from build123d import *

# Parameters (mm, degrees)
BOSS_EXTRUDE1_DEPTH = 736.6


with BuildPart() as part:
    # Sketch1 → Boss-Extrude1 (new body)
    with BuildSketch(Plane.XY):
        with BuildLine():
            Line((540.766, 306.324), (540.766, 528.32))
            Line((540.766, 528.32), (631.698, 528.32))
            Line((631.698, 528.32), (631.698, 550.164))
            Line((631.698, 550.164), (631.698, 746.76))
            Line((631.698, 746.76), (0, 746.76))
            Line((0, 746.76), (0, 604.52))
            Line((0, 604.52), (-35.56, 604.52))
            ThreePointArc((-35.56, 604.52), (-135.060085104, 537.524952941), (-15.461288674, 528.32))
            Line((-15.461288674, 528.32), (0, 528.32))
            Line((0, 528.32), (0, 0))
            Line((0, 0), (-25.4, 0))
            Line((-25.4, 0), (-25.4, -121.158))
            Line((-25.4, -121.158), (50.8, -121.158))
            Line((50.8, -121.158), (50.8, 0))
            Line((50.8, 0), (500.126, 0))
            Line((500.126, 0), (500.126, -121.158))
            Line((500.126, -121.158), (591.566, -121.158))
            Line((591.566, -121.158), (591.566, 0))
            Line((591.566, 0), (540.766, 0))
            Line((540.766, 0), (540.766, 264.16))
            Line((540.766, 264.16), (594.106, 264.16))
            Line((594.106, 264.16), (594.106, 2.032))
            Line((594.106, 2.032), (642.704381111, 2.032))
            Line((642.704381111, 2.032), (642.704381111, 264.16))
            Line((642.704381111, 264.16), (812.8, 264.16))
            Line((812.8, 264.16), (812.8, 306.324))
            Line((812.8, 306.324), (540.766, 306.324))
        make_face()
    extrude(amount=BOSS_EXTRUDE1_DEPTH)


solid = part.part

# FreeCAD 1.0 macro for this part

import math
import FreeCAD as App
import Part
import Sketcher
Q = App.Units.Quantity

doc = App.newDocument("Part")
body = doc.addObject("PartDesign::Body", "Body")

# Sketch on XY plane
sketch1 = body.newObject("Sketcher::SketchObject", "Sketch")
sketch1.AttachmentSupport = (doc.getObject("XY_Plane"), [""])
sketch1.MapMode = "FlatFace"
sketch1.addGeometry(Part.LineSegment(App.Vector(540.766, 306.324, 0), App.Vector(540.766, 528.32, 0)), False)
sketch1.addGeometry(Part.LineSegment(App.Vector(540.766, 528.32, 0), App.Vector(631.698, 528.32, 0)), False)
sketch1.addGeometry(Part.LineSegment(App.Vector(631.698, 528.32, 0), App.Vector(631.698, 746.76, 0)), False)
sketch1.addGeometry(Part.LineSegment(App.Vector(631.698, 746.76, 0), App.Vector(0, 746.76, 0)), False)
sketch1.addGeometry(Part.LineSegment(App.Vector(0, 746.76, 0), App.Vector(0, 604.52, 0)), False)
sketch1.addGeometry(Part.LineSegment(App.Vector(0, 604.52, 0), App.Vector(-35.56, 604.52, 0)), False)
sketch1.addGeometry(Part.ArcOfCircle(Part.Circle(App.Vector(-73.66, 553.72, 0), App.Vector(0, 0, 1), 63.5), math.radians(53.130102), math.radians(336.421822)), False)
sketch1.addGeometry(Part.LineSegment(App.Vector(-15.461289, 528.32, 0), App.Vector(0, 528.32, 0)), False)
sketch1.addGeometry(Part.LineSegment(App.Vector(0, 528.32, 0), App.Vector(0, 0, 0)), False)
sketch1.addGeometry(Part.LineSegment(App.Vector(0, 0, 0), App.Vector(-25.4, 0, 0)), False)
sketch1.addGeometry(Part.LineSegment(App.Vector(-25.4, 0, 0), App.Vector(-25.4, -121.158, 0)), False)
sketch1.addGeometry(Part.LineSegment(App.Vector(-25.4, -121.158, 0), App.Vector(50.8, -121.158, 0)), False)
sketch1.addGeometry(Part.LineSegment(App.Vector(50.8, -121.158, 0), App.Vector(50.8, 0, 0)), False)
sketch1.addGeometry(Part.LineSegment(App.Vector(50.8, 0, 0), App.Vector(500.126, 0, 0)), False)
sketch1.addGeometry(Part.LineSegment(App.Vector(500.126, 0, 0), App.Vector(500.126, -121.158, 0)), False)
sketch1.addGeometry(Part.LineSegment(App.Vector(500.126, -121.158, 0), App.Vector(591.566, -121.158, 0)), False)
sketch1.addGeometry(Part.LineSegment(App.Vector(591.566, -121.158, 0), App.Vector(591.566, 0, 0)), False)
sketch1.addGeometry(Part.LineSegment(App.Vector(591.566, 0, 0), App.Vector(540.766, 0, 0)), False)
sketch1.addGeometry(Part.LineSegment(App.Vector(540.766, 0, 0), App.Vector(540.766, 264.16, 0)), False)
sketch1.addGeometry(Part.LineSegment(App.Vector(540.766, 264.16, 0), App.Vector(594.106, 264.16, 0)), False)
sketch1.addGeometry(Part.LineSegment(App.Vector(594.106, 264.16, 0), App.Vector(594.106, 2.032, 0)), False)
sketch1.addGeometry(Part.LineSegment(App.Vector(594.106, 2.032, 0), App.Vector(642.704381, 2.032, 0)), False)
sketch1.addGeometry(Part.LineSegment(App.Vector(642.704381, 2.032, 0), App.Vector(642.704381, 264.16, 0)), False)
sketch1.addGeometry(Part.LineSegment(App.Vector(642.704381, 264.16, 0), App.Vector(812.8, 264.16, 0)), False)
sketch1.addGeometry(Part.LineSegment(App.Vector(812.8, 264.16, 0), App.Vector(812.8, 306.324, 0)), False)
sketch1.addGeometry(Part.LineSegment(App.Vector(812.8, 306.324, 0), App.Vector(540.766, 306.324, 0)), False)
sketch1.addConstraint(Sketcher.Constraint("Coincident", 0, 2, 1, 1))
sketch1.addConstraint(Sketcher.Constraint("Coincident", 1, 2, 2, 1))
sketch1.addConstraint(Sketcher.Constraint("Coincident", 2, 2, 3, 1))
sketch1.addConstraint(Sketcher.Constraint("Coincident", 3, 2, 4, 1))
sketch1.addConstraint(Sketcher.Constraint("Coincident", 4, 2, 5, 1))
sketch1.addConstraint(Sketcher.Constraint("Coincident", 5, 2, 6, 1))
sketch1.addConstraint(Sketcher.Constraint("Coincident", 6, 2, 7, 1))
sketch1.addConstraint(Sketcher.Constraint("Coincident", 7, 2, 8, 1))
sketch1.addConstraint(Sketcher.Constraint("Coincident", 8, 2, 9, 1))
sketch1.addConstraint(Sketcher.Constraint("Coincident", 9, 2, 10, 1))
sketch1.addConstraint(Sketcher.Constraint("Coincident", 10, 2, 11, 1))
sketch1.addConstraint(Sketcher.Constraint("Coincident", 11, 2, 12, 1))
sketch1.addConstraint(Sketcher.Constraint("Coincident", 12, 2, 13, 1))
sketch1.addConstraint(Sketcher.Constraint("Coincident", 13, 2, 14, 1))
sketch1.addConstraint(Sketcher.Constraint("Coincident", 14, 2, 15, 1))
sketch1.addConstraint(Sketcher.Constraint("Coincident", 15, 2, 16, 1))
sketch1.addConstraint(Sketcher.Constraint("Coincident", 16, 2, 17, 1))
sketch1.addConstraint(Sketcher.Constraint("Coincident", 17, 2, 18, 1))
sketch1.addConstraint(Sketcher.Constraint("Coincident", 18, 2, 19, 1))
sketch1.addConstraint(Sketcher.Constraint("Coincident", 19, 2, 20, 1))
sketch1.addConstraint(Sketcher.Constraint("Coincident", 20, 2, 21, 1))
sketch1.addConstraint(Sketcher.Constraint("Coincident", 21, 2, 22, 1))
sketch1.addConstraint(Sketcher.Constraint("Coincident", 22, 2, 23, 1))
sketch1.addConstraint(Sketcher.Constraint("Coincident", 23, 2, 24, 1))
sketch1.addConstraint(Sketcher.Constraint("Coincident", 24, 2, 25, 1))
sketch1.addConstraint(Sketcher.Constraint("Coincident", 25, 2, 0, 1))
sketch1.addConstraint(Sketcher.Constraint("Vertical", 0))
sketch1.addConstraint(Sketcher.Constraint("Horizontal", 1))
sketch1.addConstraint(Sketcher.Constraint("Vertical", 2))
sketch1.addConstraint(Sketcher.Constraint("Horizontal", 3))
sketch1.addConstraint(Sketcher.Constraint("Vertical", 4))
sketch1.addConstraint(Sketcher.Constraint("Horizontal", 5))
sketch1.addConstraint(Sketcher.Constraint("Horizontal", 7))
sketch1.addConstraint(Sketcher.Constraint("Vertical", 8))
sketch1.addConstraint(Sketcher.Constraint("Horizontal", 9))
sketch1.addConstraint(Sketcher.Constraint("Vertical", 10))
sketch1.addConstraint(Sketcher.Constraint("Horizontal", 11))
sketch1.addConstraint(Sketcher.Constraint("Vertical", 12))
sketch1.addConstraint(Sketcher.Constraint("Horizontal", 13))
sketch1.addConstraint(Sketcher.Constraint("Vertical", 14))
sketch1.addConstraint(Sketcher.Constraint("Horizontal", 15))
sketch1.addConstraint(Sketcher.Constraint("Vertical", 16))
sketch1.addConstraint(Sketcher.Constraint("Horizontal", 17))
sketch1.addConstraint(Sketcher.Constraint("Vertical", 18))
sketch1.addConstraint(Sketcher.Constraint("Horizontal", 19))
sketch1.addConstraint(Sketcher.Constraint("Vertical", 20))
sketch1.addConstraint(Sketcher.Constraint("Horizontal", 21))
sketch1.addConstraint(Sketcher.Constraint("Vertical", 22))
sketch1.addConstraint(Sketcher.Constraint("Horizontal", 23))
sketch1.addConstraint(Sketcher.Constraint("Vertical", 24))
sketch1.addConstraint(Sketcher.Constraint("Horizontal", 25))
sketch1.addConstraint(Sketcher.Constraint("Coincident", 8, 2, -1, 1))
sketch1.addConstraint(Sketcher.Constraint("PointOnObject", 3, 2, -2))
sketch1.addConstraint(Sketcher.Constraint("PointOnObject", 12, 2, -1))
sketch1.addConstraint(Sketcher.Constraint("PointOnObject", 16, 2, -1))
sketch1.addConstraint(Sketcher.Constraint("Horizontal", 1, 2, 6, 2))
sketch1.addConstraint(Sketcher.Constraint("Horizontal", 11, 2, 14, 2))
sketch1.addConstraint(Sketcher.Constraint("Horizontal", 19, 2, 22, 2))
sketch1.addConstraint(Sketcher.Constraint("Vertical", 0, 2, 17, 2))
sketch1.addConstraint(Sketcher.Constraint("Radius", 6, Q("2.5 in")))
sketch1.addConstraint(Sketcher.Constraint("DistanceX", 9, 2, 9, 1, Q("1 in")))
sketch1.addConstraint(Sketcher.Constraint("DistanceX", 11, 1, 11, 2, Q("3 in")))
sketch1.addConstraint(Sketcher.Constraint("DistanceX", 17, 2, 17, 1, Q("2 in")))
sketch1.addConstraint(Sketcher.Constraint("DistanceX", 5, 2, 5, 1, Q("1.4 in")))
sketch1.addConstraint(Sketcher.Constraint("DistanceX", 15, 1, 15, 2, Q("3.6 in")))
sketch1.addConstraint(Sketcher.Constraint("DistanceX", 19, 1, 19, 2, Q("2.1 in")))
sketch1.addConstraint(Sketcher.Constraint("DistanceY", 2, 1, 2, 2, Q("8.6 in")))
sketch1.addConstraint(Sketcher.Constraint("DistanceY", 4, 2, 4, 1, Q("5.6 in")))
sketch1.addConstraint(Sketcher.Constraint("DistanceY", 8, 2, 8, 1, Q("20.8 in")))
sketch1.addConstraint(Sketcher.Constraint("DistanceY", 18, 1, 18, 2, Q("10.4 in")))
sketch1.addConstraint(Sketcher.Constraint("DistanceX", -1, 1, 23, 2, Q("32 in")))
sketch1.addConstraint(Sketcher.Constraint("DistanceY", 0, 2, 6, 3, Q("1 in")))
sketch1.addConstraint(Sketcher.Constraint("DistanceX", 1, 1, 1, 2, Q("3.58 in")))
sketch1.addConstraint(Sketcher.Constraint("DistanceX", 3, 2, 3, 1, Q("24.87 in")))
sketch1.addConstraint(Sketcher.Constraint("DistanceY", 0, 1, 0, 2, Q("8.74 in")))
sketch1.addConstraint(Sketcher.Constraint("DistanceY", 10, 2, 10, 1, Q("4.77 in")))
sketch1.addConstraint(Sketcher.Constraint("DistanceY", 20, 2, 20, 1, Q("10.32 in")))
sketch1.addConstraint(Sketcher.Constraint("DistanceX", 21, 1, 21, 2, Q("48.598381 mm")))
pad1 = body.newObject("PartDesign::Pad", "Pad")
pad1.Profile = sketch1
pad1.Length = Q("29 in")

doc.recompute()
